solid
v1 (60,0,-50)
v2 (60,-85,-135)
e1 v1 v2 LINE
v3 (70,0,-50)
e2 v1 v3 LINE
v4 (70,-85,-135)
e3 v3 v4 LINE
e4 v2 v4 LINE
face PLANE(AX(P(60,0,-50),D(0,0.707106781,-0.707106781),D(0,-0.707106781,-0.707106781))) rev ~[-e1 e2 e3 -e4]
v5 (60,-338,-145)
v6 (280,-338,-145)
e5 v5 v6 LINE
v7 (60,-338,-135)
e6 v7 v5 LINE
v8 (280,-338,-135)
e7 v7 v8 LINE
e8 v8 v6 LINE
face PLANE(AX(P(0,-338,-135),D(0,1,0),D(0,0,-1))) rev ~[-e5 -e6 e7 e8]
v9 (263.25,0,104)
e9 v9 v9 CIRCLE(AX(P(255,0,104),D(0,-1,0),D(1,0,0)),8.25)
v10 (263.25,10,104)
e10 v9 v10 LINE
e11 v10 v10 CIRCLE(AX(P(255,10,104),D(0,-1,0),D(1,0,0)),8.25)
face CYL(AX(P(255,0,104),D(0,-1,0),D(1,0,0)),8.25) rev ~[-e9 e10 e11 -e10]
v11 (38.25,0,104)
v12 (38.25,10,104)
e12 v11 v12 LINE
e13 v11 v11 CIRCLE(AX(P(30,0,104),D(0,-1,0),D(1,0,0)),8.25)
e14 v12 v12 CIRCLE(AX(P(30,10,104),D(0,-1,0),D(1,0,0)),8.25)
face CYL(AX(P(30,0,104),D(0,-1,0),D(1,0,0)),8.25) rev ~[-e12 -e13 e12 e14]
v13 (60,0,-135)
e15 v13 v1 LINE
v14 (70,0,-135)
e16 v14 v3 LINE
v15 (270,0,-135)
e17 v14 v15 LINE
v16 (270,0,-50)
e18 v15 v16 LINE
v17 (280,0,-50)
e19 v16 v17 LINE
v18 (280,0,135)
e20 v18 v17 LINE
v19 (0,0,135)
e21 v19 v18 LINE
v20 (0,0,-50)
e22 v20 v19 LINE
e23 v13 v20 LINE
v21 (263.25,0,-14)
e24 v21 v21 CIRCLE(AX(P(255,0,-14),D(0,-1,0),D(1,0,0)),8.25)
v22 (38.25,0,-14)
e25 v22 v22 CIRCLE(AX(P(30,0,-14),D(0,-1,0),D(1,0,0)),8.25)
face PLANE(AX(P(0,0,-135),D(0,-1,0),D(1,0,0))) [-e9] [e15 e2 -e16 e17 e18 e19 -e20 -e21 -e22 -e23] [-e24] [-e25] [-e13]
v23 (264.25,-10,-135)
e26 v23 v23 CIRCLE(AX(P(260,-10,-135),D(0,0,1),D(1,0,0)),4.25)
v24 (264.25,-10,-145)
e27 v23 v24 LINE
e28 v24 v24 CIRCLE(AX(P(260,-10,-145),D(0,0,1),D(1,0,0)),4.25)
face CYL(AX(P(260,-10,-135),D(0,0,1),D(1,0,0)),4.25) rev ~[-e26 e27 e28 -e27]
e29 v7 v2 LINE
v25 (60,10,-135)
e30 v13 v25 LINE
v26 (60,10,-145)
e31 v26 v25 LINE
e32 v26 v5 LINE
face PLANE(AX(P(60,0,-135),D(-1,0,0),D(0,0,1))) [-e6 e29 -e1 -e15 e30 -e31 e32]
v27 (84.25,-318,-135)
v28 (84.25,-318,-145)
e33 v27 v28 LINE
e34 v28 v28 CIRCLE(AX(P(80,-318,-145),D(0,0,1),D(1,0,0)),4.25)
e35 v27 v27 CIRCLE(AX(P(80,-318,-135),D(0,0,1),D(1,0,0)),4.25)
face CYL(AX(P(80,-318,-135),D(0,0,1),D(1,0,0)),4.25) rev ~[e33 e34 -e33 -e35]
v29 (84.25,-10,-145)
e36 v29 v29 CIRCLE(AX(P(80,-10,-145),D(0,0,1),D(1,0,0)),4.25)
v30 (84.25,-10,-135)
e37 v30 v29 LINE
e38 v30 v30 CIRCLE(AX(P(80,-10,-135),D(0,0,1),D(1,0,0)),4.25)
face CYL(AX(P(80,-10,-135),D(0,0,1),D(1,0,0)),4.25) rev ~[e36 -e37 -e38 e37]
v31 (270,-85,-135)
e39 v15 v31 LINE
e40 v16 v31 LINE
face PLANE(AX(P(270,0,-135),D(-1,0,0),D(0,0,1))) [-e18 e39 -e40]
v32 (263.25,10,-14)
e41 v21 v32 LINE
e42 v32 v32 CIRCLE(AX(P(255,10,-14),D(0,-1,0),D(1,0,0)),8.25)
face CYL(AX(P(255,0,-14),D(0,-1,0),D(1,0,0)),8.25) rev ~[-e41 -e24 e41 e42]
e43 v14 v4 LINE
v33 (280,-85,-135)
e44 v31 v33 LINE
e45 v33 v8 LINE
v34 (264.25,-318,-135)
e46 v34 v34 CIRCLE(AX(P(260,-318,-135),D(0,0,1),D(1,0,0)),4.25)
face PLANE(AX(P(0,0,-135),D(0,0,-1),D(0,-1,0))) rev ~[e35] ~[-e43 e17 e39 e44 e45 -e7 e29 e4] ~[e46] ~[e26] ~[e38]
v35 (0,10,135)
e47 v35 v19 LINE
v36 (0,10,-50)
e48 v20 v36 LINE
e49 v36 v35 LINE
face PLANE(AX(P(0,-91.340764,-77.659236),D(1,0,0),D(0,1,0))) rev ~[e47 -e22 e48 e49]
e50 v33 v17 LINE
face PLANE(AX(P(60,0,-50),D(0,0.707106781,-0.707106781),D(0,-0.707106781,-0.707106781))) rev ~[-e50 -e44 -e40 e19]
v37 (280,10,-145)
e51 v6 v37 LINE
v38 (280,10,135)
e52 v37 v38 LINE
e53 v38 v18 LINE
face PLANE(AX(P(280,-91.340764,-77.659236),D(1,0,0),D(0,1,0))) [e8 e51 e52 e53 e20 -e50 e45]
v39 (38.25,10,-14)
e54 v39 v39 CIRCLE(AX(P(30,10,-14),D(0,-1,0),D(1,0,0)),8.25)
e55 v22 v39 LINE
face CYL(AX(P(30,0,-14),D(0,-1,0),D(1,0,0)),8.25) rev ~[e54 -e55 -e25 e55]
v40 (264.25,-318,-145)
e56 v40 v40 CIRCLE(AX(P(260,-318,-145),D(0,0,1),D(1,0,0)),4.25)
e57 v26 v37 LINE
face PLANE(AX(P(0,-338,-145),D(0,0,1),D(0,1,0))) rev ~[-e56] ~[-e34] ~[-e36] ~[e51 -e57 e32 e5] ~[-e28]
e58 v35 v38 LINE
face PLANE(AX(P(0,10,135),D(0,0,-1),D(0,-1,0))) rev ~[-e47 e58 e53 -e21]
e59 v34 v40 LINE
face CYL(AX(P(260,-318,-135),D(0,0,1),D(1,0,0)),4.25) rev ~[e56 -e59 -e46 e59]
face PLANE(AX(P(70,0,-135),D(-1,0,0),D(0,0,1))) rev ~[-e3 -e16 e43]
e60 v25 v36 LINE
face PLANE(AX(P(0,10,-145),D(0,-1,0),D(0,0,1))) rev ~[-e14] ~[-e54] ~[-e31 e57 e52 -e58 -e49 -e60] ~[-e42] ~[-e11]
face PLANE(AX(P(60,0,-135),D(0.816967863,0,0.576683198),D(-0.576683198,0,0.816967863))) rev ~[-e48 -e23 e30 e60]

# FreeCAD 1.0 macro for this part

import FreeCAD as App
import Part
import Sketcher

V = App.Vector

doc = App.newDocument("Part")
params = doc.addObject("Spreadsheet::Sheet", "Params")
for row, (alias, value) in enumerate([
    ("sketch1_width", "10 mm"),
    ("sketch1_width2", "338 mm"),
    ("sketch1_height", "280 mm"),
    ("pad1_length", "280 mm"),
    ("sketch2_width", "60 mm"),
    ("sketch2_height", "338 mm"),
    ("sketch3_width", "60 mm"),
    ("sketch3_height", "95 mm"),
    ("sketch3_height2", "10 mm"),
    ("sketch4_diameter", "16.5 mm"),
    ("sketch5_diameter", "8.5 mm"),
    ("sketch6_width", "10 mm"),
    ("sketch6_height", "85 mm"),
    ("pad2_length", "85 mm"),
    ("sketch7_width", "85 mm"),
    ("sketch8_width", "85 mm"),
], start=1):
    params.set(f"A{row}", alias)
    params.set(f"B{row}", "=" + value)
    params.setAlias(f"B{row}", alias)

body = doc.addObject("PartDesign::Body", "Body")

sketch1 = doc.addObject("Sketcher::SketchObject", "Sketch")
body.addObject(sketch1)
sketch1.AttachmentSupport = (doc.YZ_Plane, [""])
sketch1.MapMode = "FlatFace"
sketch1.addGeometry([
    Part.LineSegment(V(10, -145, 0), V(10, 135, 0)),
    Part.LineSegment(V(10, 135, 0), V(0, 135, 0)),
    Part.LineSegment(V(0, 135, 0), V(0, -135, 0)),
    Part.LineSegment(V(0, -135, 0), V(-338, -135, 0)),
    Part.LineSegment(V(-338, -135, 0), V(-338, -145, 0)),
    Part.LineSegment(V(-338, -145, 0), V(10, -145, 0)),
], False)
sketch1.addConstraint([
    Sketcher.Constraint("Coincident", 0, 2, 1, 1),
    Sketcher.Constraint("Coincident", 1, 2, 2, 1),
    Sketcher.Constraint("Coincident", 2, 2, 3, 1),
    Sketcher.Constraint("Coincident", 3, 2, 4, 1),
    Sketcher.Constraint("Coincident", 4, 2, 5, 1),
    Sketcher.Constraint("Coincident", 5, 2, 0, 1),
    Sketcher.Constraint("Vertical", 0),
    Sketcher.Constraint("Horizontal", 1),
    Sketcher.Constraint("Vertical", 2),
    Sketcher.Constraint("Horizontal", 3),
    Sketcher.Constraint("Vertical", 4),
    Sketcher.Constraint("Horizontal", 5),
    Sketcher.Constraint("Symmetric", 1, 2, 2, 2, -1, 1),
    Sketcher.Constraint("Equal", 1, 4),
    Sketcher.Constraint("DistanceX", 1, 2, 1, 1, 10.0),
    Sketcher.Constraint("DistanceX", 3, 2, 3, 1, 338.0),
    Sketcher.Constraint("DistanceY", 0, 1, 0, 2, 280.0),
])
sketch1.setExpression("Constraints[14]", "Params.sketch1_width")
sketch1.setExpression("Constraints[15]", "Params.sketch1_width2")
sketch1.setExpression("Constraints[16]", "Params.sketch1_height")
pad1 = doc.addObject("PartDesign::Pad", "Pad")
body.addObject(pad1)
pad1.Profile = sketch1
pad1.setExpression("Length", "Params.pad1_length")

sketch2 = doc.addObject("Sketcher::SketchObject", "Sketch001")
body.addObject(sketch2)
sketch2.AttachmentSupport = (doc.XY_Plane, [""])
sketch2.MapMode = "FlatFace"
sketch2.AttachmentOffset = App.Placement(V(0, 0, -135), App.Rotation())
sketch2.addGeometry([
    Part.LineSegment(V(0, 0, 0), V(0, -338, 0)),
    Part.LineSegment(V(0, -338, 0), V(60, -338, 0)),
    Part.LineSegment(V(60, -338, 0), V(60, 0, 0)),
    Part.LineSegment(V(60, 0, 0), V(0, 0, 0)),
], False)
sketch2.addConstraint([
    Sketcher.Constraint("Coincident", 0, 2, 1, 1),
    Sketcher.Constraint("Coincident", 1, 2, 2, 1),
    Sketcher.Constraint("Coincident", 2, 2, 3, 1),
    Sketcher.Constraint("Coincident", 3, 2, 0, 1),
    Sketcher.Constraint("Vertical", 0),
    Sketcher.Constraint("Horizontal", 1),
    Sketcher.Constraint("Vertical", 2),
    Sketcher.Constraint("Horizontal", 3),
    Sketcher.Constraint("Coincident", 3, 2, -1, 1),
    Sketcher.Constraint("DistanceX", 1, 1, 1, 2, 60.0),
    Sketcher.Constraint("DistanceY", 0, 2, 0, 1, 338.0),
])
sketch2.setExpression("Constraints[9]", "Params.sketch2_width")
sketch2.setExpression("Constraints[10]", "Params.sketch2_height")
pocket1 = doc.addObject("PartDesign::Pocket", "Pocket")
body.addObject(pocket1)
pocket1.Profile = sketch2
pocket1.Type = "ThroughAll"

sketch3 = doc.addObject("Sketcher::SketchObject", "Sketch002")
body.addObject(sketch3)
sketch3.AttachmentSupport = (doc.XZ_Plane, [""])
sketch3.MapMode = "FlatFace"
sketch3.addGeometry([
    Part.LineSegment(V(60, -135, 0), V(0, -50, 0)),
    Part.LineSegment(V(0, -50, 0), V(0, -145, 0)),
    Part.LineSegment(V(0, -145, 0), V(60, -145, 0)),
    Part.LineSegment(V(60, -145, 0), V(60, -135, 0)),
], False)
sketch3.addConstraint([
    Sketcher.Constraint("Coincident", 0, 2, 1, 1),
    Sketcher.Constraint("Coincident", 1, 2, 2, 1),
    Sketcher.Constraint("Coincident", 2, 2, 3, 1),
    Sketcher.Constraint("Coincident", 3, 2, 0, 1),
    Sketcher.Constraint("Vertical", 1),
    Sketcher.Constraint("Horizontal", 2),
    Sketcher.Constraint("Vertical", 3),
    Sketcher.Constraint("PointOnObject", 0, 2, -2),
    Sketcher.Constraint("DistanceX", 2, 1, 2, 2, 60.0),
    Sketcher.Constraint("DistanceY", 1, 2, 1, 1, 95.0),
    Sketcher.Constraint("DistanceY", 3, 1, 3, 2, 10.0),
    Sketcher.Constraint("DistanceY", 0, 2, -1, 1, 50.0),
])
sketch3.setExpression("Constraints[8]", "Params.sketch3_width")
sketch3.setExpression("Constraints[9]", "Params.sketch3_height")
sketch3.setExpression("Constraints[10]", "Params.sketch3_height2")
pocket2 = doc.addObject("PartDesign::Pocket", "Pocket001")
body.addObject(pocket2)
pocket2.Profile = sketch3
pocket2.Type = "ThroughAll"

sketch4 = doc.addObject("Sketcher::SketchObject", "Sketch003")
body.addObject(sketch4)
sketch4.AttachmentSupport = (doc.XZ_Plane, [""])
sketch4.MapMode = "FlatFace"
sketch4.addGeometry([
    Part.Circle(V(30, 104, 0), V(0, 0, 1), 8),
    Part.Circle(V(255, 104, 0), V(0, 0, 1), 8),
    Part.Circle(V(255, -14, 0), V(0, 0, 1), 8),
    Part.Circle(V(30, -14, 0), V(0, 0, 1), 8),
], False)
sketch4.addConstraint([
    Sketcher.Constraint("Equal", 0, 1),
    Sketcher.Constraint("Equal", 1, 2),
    Sketcher.Constraint("Equal", 2, 3),
    Sketcher.Constraint("Horizontal", 0, 3, 1, 3),
    Sketcher.Constraint("Horizontal", 2, 3, 3, 3),
    Sketcher.Constraint("Vertical", 1, 3, 2, 3),
    Sketcher.Constraint("Vertical", 0, 3, 3, 3),
    Sketcher.Constraint("Diameter", 0, 16.5),
    Sketcher.Constraint("DistanceX", -1, 1, 0, 3, 30.0),
    Sketcher.Constraint("DistanceY", -1, 1, 0, 3, 104.0),
    Sketcher.Constraint("DistanceX", -1, 1, 1, 3, 255.0),
    Sketcher.Constraint("DistanceY", 2, 3, -1, 1, 14.0),
])
sketch4.setExpression("Constraints[7]", "Params.sketch4_diameter")
pocket3 = doc.addObject("PartDesign::Pocket", "Pocket002")
body.addObject(pocket3)
pocket3.Profile = sketch4
pocket3.Type = "ThroughAll"

sketch5 = doc.addObject("Sketcher::SketchObject", "Sketch004")
body.addObject(sketch5)
sketch5.AttachmentSupport = (doc.XY_Plane, [""])
sketch5.MapMode = "FlatFace"
sketch5.AttachmentOffset = App.Placement(V(0, 0, -135), App.Rotation())
sketch5.addGeometry([
    Part.Circle(V(80, -10, 0), V(0, 0, 1), 4.2),
    Part.Circle(V(260, -10, 0), V(0, 0, 1), 4.2),
    Part.Circle(V(80, -318, 0), V(0, 0, 1), 4.2),
    Part.Circle(V(260, -318, 0), V(0, 0, 1), 4.2),
], False)
sketch5.addConstraint([
    Sketcher.Constraint("Equal", 0, 1),
    Sketcher.Constraint("Equal", 1, 2),
    Sketcher.Constraint("Equal", 2, 3),
    Sketcher.Constraint("Horizontal", 0, 3, 1, 3),
    Sketcher.Constraint("Horizontal", 2, 3, 3, 3),
    Sketcher.Constraint("Vertical", 0, 3, 2, 3),
    Sketcher.Constraint("Vertical", 1, 3, 3, 3),
    Sketcher.Constraint("Diameter", 0, 8.5),
    Sketcher.Constraint("DistanceX", -1, 1, 0, 3, 80.0),
    Sketcher.Constraint("DistanceY", 0, 3, -1, 1, 10.0),
    Sketcher.Constraint("DistanceX", -1, 1, 1, 3, 260.0),
    Sketcher.Constraint("DistanceY", 2, 3, -1, 1, 318.0),
])
sketch5.setExpression("Constraints[7]", "Params.sketch5_diameter")
pocket4 = doc.addObject("PartDesign::Pocket", "Pocket003")
body.addObject(pocket4)
pocket4.Profile = sketch5
pocket4.Type = "ThroughAll"

sketch6 = doc.addObject("Sketcher::SketchObject", "Sketch005")
body.addObject(sketch6)
sketch6.AttachmentSupport = (doc.XZ_Plane, [""])
sketch6.MapMode = "FlatFace"
sketch6.addGeometry([
    Part.LineSegment(V(60, -50, 0), V(60, -135, 0)),
    Part.LineSegment(V(60, -135, 0), V(70, -135, 0)),
    Part.LineSegment(V(70, -135, 0), V(70, -50, 0)),
    Part.LineSegment(V(70, -50, 0), V(60, -50, 0)),
    Part.LineSegment(V(270, -50, 0), V(270, -135, 0)),
    Part.LineSegment(V(270, -135, 0), V(280, -135, 0)),
    Part.LineSegment(V(280, -135, 0), V(280, -50, 0)),
    Part.LineSegment(V(280, -50, 0), V(270, -50, 0)),
], False)
sketch6.addConstraint([
    Sketcher.Constraint("Coincident", 0, 2, 1, 1),
    Sketcher.Constraint("Coincident", 1, 2, 2, 1),
    Sketcher.Constraint("Coincident", 2, 2, 3, 1),
    Sketcher.Constraint("Coincident", 3, 2, 0, 1),
    Sketcher.Constraint("Coincident", 4, 2, 5, 1),
    Sketcher.Constraint("Coincident", 5, 2, 6, 1),
    Sketcher.Constraint("Coincident", 6, 2, 7, 1),
    Sketcher.Constraint("Coincident", 7, 2, 4, 1),
    Sketcher.Constraint("Vertical", 0),
    Sketcher.Constraint("Horizontal", 1),
    Sketcher.Constraint("Vertical", 2),
    Sketcher.Constraint("Horizontal", 3),
    Sketcher.Constraint("Vertical", 4),
    Sketcher.Constraint("Horizontal", 5),
    Sketcher.Constraint("Vertical", 6),
    Sketcher.Constraint("Horizontal", 7),
    Sketcher.Constraint("Horizontal", 1, 2, 4, 2),
    Sketcher.Constraint("Horizontal", 3, 2, 6, 2),
    Sketcher.Constraint("Equal", 3, 5),
    Sketcher.Constraint("DistanceX", 1, 1, 1, 2, 10.0),
    Sketcher.Constraint("DistanceY", 0, 2, 0, 1, 85.0),
    Sketcher.Constraint("DistanceX", -1, 1, 0, 2, 60.0),
    Sketcher.Constraint("DistanceY", 0, 2, -1, 1, 135.0),
    Sketcher.Constraint("DistanceX", -1, 1, 4, 2, 270.0),
])
sketch6.setExpression("Constraints[19]", "Params.sketch6_width")
sketch6.setExpression("Constraints[20]", "Params.sketch6_height")
pad2 = doc.addObject("PartDesign::Pad", "Pad001")
body.addObject(pad2)
pad2.Profile = sketch6
pad2.setExpression("Length", "Params.pad2_length")

sketch7 = doc.addObject("Sketcher::SketchObject", "Sketch006")
body.addObject(sketch7)
sketch7.AttachmentSupport = (doc.YZ_Plane, [""])
sketch7.MapMode = "FlatFace"
sketch7.AttachmentOffset = App.Placement(V(0, 0, 60), App.Rotation())
sketch7.addGeometry([
    Part.LineSegment(V(-85, -50, 0), V(0, -50, 0)),
    Part.LineSegment(V(0, -50, 0), V(-85, -135, 0)),
    Part.LineSegment(V(-85, -135, 0), V(-85, -50, 0)),
], False)
sketch7.addConstraint([
    Sketcher.Constraint("Coincident", 0, 2, 1, 1),
    Sketcher.Constraint("Coincident", 1, 2, 2, 1),
    Sketcher.Constraint("Coincident", 2, 2, 0, 1),
    Sketcher.Constraint("Horizontal", 0),
    Sketcher.Constraint("Vertical", 2),
    Sketcher.Constraint("PointOnObject", 0, 2, -2),
    Sketcher.Constraint("Equal", 0, 2),
    Sketcher.Constraint("DistanceX", 0, 1, 0, 2, 85.0),
    Sketcher.Constraint("DistanceY", 0, 2, -1, 1, 50.0),
])
sketch7.setExpression("Constraints[7]", "Params.sketch7_width")
pocket5 = doc.addObject("PartDesign::Pocket", "Pocket004")
body.addObject(pocket5)
pocket5.Profile = sketch7
pocket5.Type = "ThroughAll"
pocket5.Reversed = True

sketch8 = doc.addObject("Sketcher::SketchObject", "Sketch007")
body.addObject(sketch8)
sketch8.AttachmentSupport = (doc.YZ_Plane, [""])
sketch8.MapMode = "FlatFace"
sketch8.AttachmentOffset = App.Placement(V(0, 0, 280), App.Rotation())
sketch8.addGeometry([
    Part.LineSegment(V(-85, -135, 0), V(0, -50, 0)),
    Part.LineSegment(V(0, -50, 0), V(-85, -50, 0)),
    Part.LineSegment(V(-85, -50, 0), V(-85, -135, 0)),
], False)
sketch8.addConstraint([
    Sketcher.Constraint("Coincident", 0, 2, 1, 1),
    Sketcher.Constraint("Coincident", 1, 2, 2, 1),
    Sketcher.Constraint("Coincident", 2, 2, 0, 1),
    Sketcher.Constraint("Horizontal", 1),
    Sketcher.Constraint("Vertical", 2),
    Sketcher.Constraint("PointOnObject", 0, 2, -2),
    Sketcher.Constraint("Equal", 1, 2),
    Sketcher.Constraint("DistanceX", 1, 2, 1, 1, 85.0),
    Sketcher.Constraint("DistanceY", 0, 2, -1, 1, 50.0),
])
sketch8.setExpression("Constraints[7]", "Params.sketch8_width")
pocket6 = doc.addObject("PartDesign::Pocket", "Pocket005")
body.addObject(pocket6)
pocket6.Profile = sketch8
pocket6.Type = "ThroughAll"

doc.recompute()
